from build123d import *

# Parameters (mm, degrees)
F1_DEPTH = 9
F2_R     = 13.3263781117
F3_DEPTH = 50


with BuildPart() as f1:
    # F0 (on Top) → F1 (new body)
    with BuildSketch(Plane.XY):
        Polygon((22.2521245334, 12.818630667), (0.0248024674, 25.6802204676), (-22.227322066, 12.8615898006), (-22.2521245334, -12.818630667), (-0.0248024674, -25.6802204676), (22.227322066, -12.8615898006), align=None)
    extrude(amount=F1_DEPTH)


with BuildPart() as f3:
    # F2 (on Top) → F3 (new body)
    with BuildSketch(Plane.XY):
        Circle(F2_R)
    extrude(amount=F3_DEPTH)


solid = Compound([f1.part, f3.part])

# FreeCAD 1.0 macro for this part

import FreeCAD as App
import Part
import Sketcher
from FreeCAD import Vector


def add_polygon(sketch, points):
    """Adds a closed chain of lines whose ends are joined by coincident constraints."""
    first, n = sketch.GeometryCount, len(points)
    for a, b in zip(points, points[1:] + points[:1]):
        sketch.addGeometry(Part.LineSegment(App.Vector(*a, 0), App.Vector(*b, 0)), False)
    for i in range(n):
        sketch.addConstraint(Sketcher.Constraint("Coincident", first + i, 2, first + (i + 1) % n, 1))

doc = App.newDocument("Part")
params = doc.addObject("Spreadsheet::Sheet", "Params")
for row, (alias, value) in enumerate([
    ("pad1_length", "9 mm"),
    ("pad2_length", "50 mm"),
], start=1):
    params.set(f"A{row}", alias)
    params.set(f"B{row}", "=" + value)
    params.setAlias(f"B{row}", alias)

body = doc.addObject("PartDesign::Body", "Body")

sketch1 = doc.addObject("Sketcher::SketchObject", "Sketch")
body.addObject(sketch1)
sketch1.AttachmentSupport = (doc.XY_Plane, [""])
sketch1.MapMode = "FlatFace"
add_polygon(sketch1, [(22, 13), (0, 26), (-22, 13), (-22, -13), (0, -26), (22, -13)])
sketch1.addConstraint(Sketcher.Constraint("Symmetric", 0, 2, 3, 2, -1, 1))
sketch1.addConstraint(Sketcher.Constraint("Symmetric", 1, 2, 4, 2, -1, 1))
sketch1.addConstraint(Sketcher.Constraint("Symmetric", 2, 2, 5, 2, -1, 1))
sketch1.addConstraint(Sketcher.Constraint("Equal", 0, 1))
sketch1.addConstraint(Sketcher.Constraint("Equal", 1, 2))
sketch1.addConstraint(Sketcher.Constraint("DistanceY", -1, 1, 0, 2, 25.68022))
sketch1.addConstraint(Sketcher.Constraint("DistanceY", -1, 1, 1, 2, 12.86159))
sketch1.addConstraint(Sketcher.Constraint("DistanceY", 2, 2, -1, 1, 12.818631))
sketch1.addConstraint(Sketcher.Constraint("DistanceX", 1, 2, 3, 2, 22.20252))
pad1 = doc.addObject("PartDesign::Pad", "Pad")
body.addObject(pad1)
pad1.Profile = sketch1
pad1.setExpression("Length", "Params.pad1_length")
body2 = doc.addObject("PartDesign::Body", "Body001")

sketch2 = doc.addObject("Sketcher::SketchObject", "Sketch001")
body2.addObject(sketch2)
sketch2.AttachmentSupport = (doc.getObject("XY_Plane001"), [""])
sketch2.MapMode = "FlatFace"
sketch2.addGeometry(Part.Circle(Vector(0, 0, 0), Vector(0, 0, 1), 13), False)
sketch2.addConstraint(Sketcher.Constraint("Coincident", 0, 3, -1, 1))
sketch2.addConstraint(Sketcher.Constraint("Diameter", 0, 26.652756))
pad2 = doc.addObject("PartDesign::Pad", "Pad001")
body2.addObject(pad2)
pad2.Profile = sketch2
pad2.setExpression("Length", "Params.pad2_length")

doc.recompute()
